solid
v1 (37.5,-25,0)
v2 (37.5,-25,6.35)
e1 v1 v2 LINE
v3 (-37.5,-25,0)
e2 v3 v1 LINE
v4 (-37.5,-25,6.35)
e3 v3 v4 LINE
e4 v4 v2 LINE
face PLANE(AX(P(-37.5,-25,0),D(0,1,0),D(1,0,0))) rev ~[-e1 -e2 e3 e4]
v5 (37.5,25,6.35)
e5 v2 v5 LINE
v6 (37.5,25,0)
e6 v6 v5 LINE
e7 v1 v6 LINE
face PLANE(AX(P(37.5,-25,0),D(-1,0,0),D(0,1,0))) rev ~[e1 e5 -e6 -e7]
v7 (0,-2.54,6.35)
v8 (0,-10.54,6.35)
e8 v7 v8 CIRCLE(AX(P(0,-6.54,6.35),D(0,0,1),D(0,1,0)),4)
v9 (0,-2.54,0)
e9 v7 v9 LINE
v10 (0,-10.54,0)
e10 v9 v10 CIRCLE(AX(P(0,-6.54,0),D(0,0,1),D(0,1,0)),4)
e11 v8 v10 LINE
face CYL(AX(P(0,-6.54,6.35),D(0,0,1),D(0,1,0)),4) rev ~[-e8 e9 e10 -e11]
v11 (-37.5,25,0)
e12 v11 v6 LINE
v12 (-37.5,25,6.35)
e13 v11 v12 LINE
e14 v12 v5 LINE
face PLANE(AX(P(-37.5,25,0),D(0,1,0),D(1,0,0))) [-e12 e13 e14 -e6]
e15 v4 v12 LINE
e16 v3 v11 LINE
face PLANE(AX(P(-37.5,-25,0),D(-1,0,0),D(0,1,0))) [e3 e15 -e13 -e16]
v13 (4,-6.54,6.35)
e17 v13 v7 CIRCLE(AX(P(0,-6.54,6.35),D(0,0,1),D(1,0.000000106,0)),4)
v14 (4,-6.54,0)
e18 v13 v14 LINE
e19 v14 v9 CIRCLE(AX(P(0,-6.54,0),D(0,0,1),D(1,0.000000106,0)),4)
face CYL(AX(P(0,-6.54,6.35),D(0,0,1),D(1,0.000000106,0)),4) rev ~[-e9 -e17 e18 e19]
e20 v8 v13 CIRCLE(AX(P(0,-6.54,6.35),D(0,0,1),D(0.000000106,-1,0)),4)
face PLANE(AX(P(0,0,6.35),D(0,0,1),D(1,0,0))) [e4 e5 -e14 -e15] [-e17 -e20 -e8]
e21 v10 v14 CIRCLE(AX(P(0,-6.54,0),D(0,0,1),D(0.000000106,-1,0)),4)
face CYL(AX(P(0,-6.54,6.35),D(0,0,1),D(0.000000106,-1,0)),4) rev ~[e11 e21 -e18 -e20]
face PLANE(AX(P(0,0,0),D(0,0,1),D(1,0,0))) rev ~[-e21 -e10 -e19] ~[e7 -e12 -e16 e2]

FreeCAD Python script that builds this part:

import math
import FreeCAD as App
import Part
import Sketcher

V = App.Vector
Q = App.Units.Quantity

doc = App.newDocument("Part")
params = doc.addObject("Spreadsheet::Sheet", "Params")
for row, (alias, value) in enumerate([
    ("sketch1_width", "75 mm"),
    ("sketch1_height", "50 mm"),
    ("pad1_length", "6.35 mm"),
    ("sketch2_radius", "4 mm"),
], start=1):
    params.set(f"A{row}", alias)
    params.set(f"B{row}", "=" + value)
    params.setAlias(f"B{row}", alias)

body = doc.addObject("PartDesign::Body", "Body")

# Sketch on XY plane
sketch1 = body.newObject("Sketcher::SketchObject", "Sketch")
sketch1.AttachmentSupport = (doc.getObject("XY_Plane"), [""])
sketch1.MapMode = "FlatFace"
sketch1.addGeometry([
    Part.LineSegment(V(-37.5, 25, 0), V(-37.5, -25, 0)),
    Part.LineSegment(V(-37.5, -25, 0), V(37.5, -25, 0)),
    Part.LineSegment(V(37.5, -25, 0), V(37.5, 25, 0)),
    Part.LineSegment(V(37.5, 25, 0), V(-37.5, 25, 0)),
], False)
sketch1.addConstraint([
    Sketcher.Constraint("Coincident", 0, 2, 1, 1),
    Sketcher.Constraint("Coincident", 1, 2, 2, 1),
    Sketcher.Constraint("Coincident", 2, 2, 3, 1),
    Sketcher.Constraint("Coincident", 3, 2, 0, 1),
    Sketcher.Constraint("Vertical", 0),
    Sketcher.Constraint("Horizontal", 1),
    Sketcher.Constraint("Vertical", 2),
    Sketcher.Constraint("Horizontal", 3),
    Sketcher.Constraint("Symmetric", 0, 2, 2, 2, -1, 1),
    Sketcher.Constraint("DistanceX", 1, 1, 1, 2, Q("75 mm")),
    Sketcher.Constraint("DistanceY", 0, 2, 0, 1, Q("50 mm")),
])
sketch1.setExpression("Constraints[9]", "Params.sketch1_width")
sketch1.setExpression("Constraints[10]", "Params.sketch1_height")
pad1 = body.newObject("PartDesign::Pad", "Pad")
pad1.Profile = sketch1
pad1.setExpression("Length", "Params.pad1_length")

# Sketch on XY plane
sketch2 = body.newObject("Sketcher::SketchObject", "Sketch001")
sketch2.AttachmentSupport = (doc.getObject("XY_Plane"), [""])
sketch2.MapMode = "FlatFace"
sketch2.AttachmentOffset = App.Placement(V(0, 0, 6.35), App.Rotation())
sketch2.addGeometry([
    Part.ArcOfCircle(Part.Circle(V(0, -6.54, 0), V(0, 0, 1), 4), math.radians(-89.999994), math.radians(-0.000006)),
    Part.ArcOfCircle(Part.Circle(V(0, -6.54, 0), V(0, 0, 1), 4), math.radians(0.000006), math.radians(89.999994)),
    Part.ArcOfCircle(Part.Circle(V(0, -6.54, 0), V(0, 0, 1), 4), math.radians(90), math.radians(270)),
], False)
sketch2.addConstraint([
    Sketcher.Constraint("Tangent", 0, 2, 1, 1),
    Sketcher.Constraint("Tangent", 1, 2, 2, 1),
    Sketcher.Constraint("Tangent", 2, 2, 0, 1),
    Sketcher.Constraint("PointOnObject", 0, 3, -2),
    Sketcher.Constraint("PointOnObject", 1, 2, -2),
    Sketcher.Constraint("PointOnObject", 2, 2, -2),
    Sketcher.Constraint("Horizontal", 2, 3, 0, 2),
    Sketcher.Constraint("Radius", 0, Q("4 mm")),
    Sketcher.Constraint("DistanceY", 0, 3, -1, 1, Q("6.54 mm")),
])
sketch2.setExpression("Constraints[7]", "Params.sketch2_radius")
pocket1 = body.newObject("PartDesign::Pocket", "Pocket")
pocket1.Profile = sketch2
pocket1.Type = "ThroughAll"

doc.recompute()
